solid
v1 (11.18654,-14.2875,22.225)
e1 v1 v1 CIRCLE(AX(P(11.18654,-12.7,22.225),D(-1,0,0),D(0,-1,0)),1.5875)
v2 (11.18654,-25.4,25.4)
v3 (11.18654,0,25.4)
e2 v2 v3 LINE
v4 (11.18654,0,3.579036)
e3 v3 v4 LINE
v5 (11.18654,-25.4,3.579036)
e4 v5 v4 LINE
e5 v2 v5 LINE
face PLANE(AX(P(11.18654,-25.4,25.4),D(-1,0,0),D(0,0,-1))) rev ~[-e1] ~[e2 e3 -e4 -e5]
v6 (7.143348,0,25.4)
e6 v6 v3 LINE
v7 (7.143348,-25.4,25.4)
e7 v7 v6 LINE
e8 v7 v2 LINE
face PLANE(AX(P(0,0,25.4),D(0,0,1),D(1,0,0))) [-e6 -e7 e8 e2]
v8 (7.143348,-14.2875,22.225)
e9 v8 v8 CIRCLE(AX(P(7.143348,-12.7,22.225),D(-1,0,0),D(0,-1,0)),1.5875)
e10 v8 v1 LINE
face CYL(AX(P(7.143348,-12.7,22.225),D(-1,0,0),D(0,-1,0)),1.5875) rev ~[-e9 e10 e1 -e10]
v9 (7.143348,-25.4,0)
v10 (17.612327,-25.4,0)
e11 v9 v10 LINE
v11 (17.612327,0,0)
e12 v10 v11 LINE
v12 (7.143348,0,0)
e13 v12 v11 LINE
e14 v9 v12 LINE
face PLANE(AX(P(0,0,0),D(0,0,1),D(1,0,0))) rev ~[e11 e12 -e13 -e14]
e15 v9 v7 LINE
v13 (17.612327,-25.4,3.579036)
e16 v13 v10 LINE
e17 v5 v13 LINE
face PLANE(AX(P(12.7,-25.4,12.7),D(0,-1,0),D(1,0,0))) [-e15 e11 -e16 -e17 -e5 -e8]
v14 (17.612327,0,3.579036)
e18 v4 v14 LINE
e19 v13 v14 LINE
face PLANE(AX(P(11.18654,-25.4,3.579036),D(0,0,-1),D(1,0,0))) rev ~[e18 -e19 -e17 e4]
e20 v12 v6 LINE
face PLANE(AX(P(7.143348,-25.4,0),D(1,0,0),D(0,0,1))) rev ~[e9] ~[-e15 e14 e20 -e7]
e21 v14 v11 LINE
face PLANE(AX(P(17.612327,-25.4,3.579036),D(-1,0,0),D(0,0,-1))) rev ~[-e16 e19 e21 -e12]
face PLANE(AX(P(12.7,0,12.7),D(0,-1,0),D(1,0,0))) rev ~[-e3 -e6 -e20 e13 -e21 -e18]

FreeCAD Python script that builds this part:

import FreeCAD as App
import Part
import Sketcher
from FreeCAD import Vector
Q = App.Units.Quantity

doc = App.newDocument("Part")
body = doc.addObject("PartDesign::Body", "Body")

sketch1 = body.newObject("Sketcher::SketchObject", "Sketch")
sketch1.AttachmentSupport = (doc.getObject("XZ_Plane"), [""])
sketch1.MapMode = "FlatFace"
sketch1.addGeometry([
    Part.LineSegment(Vector(0, 25, 0), Vector(0, 0, 0)),
    Part.LineSegment(Vector(0, 0, 0), Vector(25, 0, 0)),
    Part.LineSegment(Vector(25, 0, 0), Vector(25, 25, 0)),
    Part.LineSegment(Vector(25, 25, 0), Vector(0, 25, 0)),
], False)
sketch1.addConstraint([
    Sketcher.Constraint("Coincident", 0, 2, 1, 1),
    Sketcher.Constraint("Coincident", 1, 2, 2, 1),
    Sketcher.Constraint("Coincident", 2, 2, 3, 1),
    Sketcher.Constraint("Coincident", 3, 2, 0, 1),
    Sketcher.Constraint("Vertical", 0),
    Sketcher.Constraint("Horizontal", 1),
    Sketcher.Constraint("Vertical", 2),
    Sketcher.Constraint("Horizontal", 3),
    Sketcher.Constraint("Coincident", 0, 2, -1, 1),
    Sketcher.Constraint("Equal", 3, 0),
    Sketcher.Constraint("DistanceX", 1, 1, 1, 2, Q("1 in")),
])
pad1 = body.newObject("PartDesign::Pad", "Pad")
pad1.Profile = sketch1
pad1.Length = Q("1 in")

sketch2 = body.newObject("Sketcher::SketchObject", "Sketch001")
sketch2.AttachmentSupport = (doc.getObject("XZ_Plane"), [""])
sketch2.MapMode = "FlatFace"
sketch2.AttachmentOffset = App.Placement(Vector(0, 0, 1 * 25.4), App.Rotation())
sketch2.addGeometry([
    Part.LineSegment(Vector(0, 25.4, 0), Vector(0, 0, 0)),
    Part.LineSegment(Vector(0, 0, 0), Vector(7.1, 0, 0)),
    Part.LineSegment(Vector(7.1, 0, 0), Vector(7.1, 25.4, 0)),
    Part.LineSegment(Vector(7.1, 25.4, 0), Vector(0, 25.4, 0)),
    Part.LineSegment(Vector(25.4, 25.4, 0), Vector(11.2, 25.4, 0)),
    Part.LineSegment(Vector(11.2, 25.4, 0), Vector(11.2, 3.6, 0)),
    Part.LineSegment(Vector(11.2, 3.6, 0), Vector(17.6, 3.6, 0)),
    Part.LineSegment(Vector(17.6, 3.6, 0), Vector(17.6, 0, 0)),
    Part.LineSegment(Vector(17.6, 0, 0), Vector(25.4, 0, 0)),
    Part.LineSegment(Vector(25.4, 0, 0), Vector(25.4, 25.4, 0)),
], False)
sketch2.addConstraint([
    Sketcher.Constraint("Coincident", 0, 2, 1, 1),
    Sketcher.Constraint("Coincident", 1, 2, 2, 1),
    Sketcher.Constraint("Coincident", 2, 2, 3, 1),
    Sketcher.Constraint("Coincident", 3, 2, 0, 1),
    Sketcher.Constraint("Coincident", 4, 2, 5, 1),
    Sketcher.Constraint("Coincident", 5, 2, 6, 1),
    Sketcher.Constraint("Coincident", 6, 2, 7, 1),
    Sketcher.Constraint("Coincident", 7, 2, 8, 1),
    Sketcher.Constraint("Coincident", 8, 2, 9, 1),
    Sketcher.Constraint("Coincident", 9, 2, 4, 1),
    Sketcher.Constraint("Vertical", 0),
    Sketcher.Constraint("Horizontal", 1),
    Sketcher.Constraint("Vertical", 2),
    Sketcher.Constraint("Horizontal", 3),
    Sketcher.Constraint("Horizontal", 4),
    Sketcher.Constraint("Vertical", 5),
    Sketcher.Constraint("Horizontal", 6),
    Sketcher.Constraint("Vertical", 7),
    Sketcher.Constraint("Horizontal", 8),
    Sketcher.Constraint("Vertical", 9),
    Sketcher.Constraint("Coincident", 0, 2, -1, 1),
    Sketcher.Constraint("PointOnObject", 7, 2, -1),
    Sketcher.Constraint("Horizontal", 3, 2, 4, 2),
    Sketcher.Constraint("DistanceY", 0, 2, 0, 1, Q("1 in")),
    Sketcher.Constraint("DistanceX", -1, 1, 8, 2, Q("1 in")),
    Sketcher.Constraint("DistanceX", 4, 2, 4, 1, 14.21346),
    Sketcher.Constraint("DistanceX", 1, 1, 1, 2, 7.143348),
    Sketcher.Constraint("DistanceX", 6, 1, 6, 2, 6.425787),
    Sketcher.Constraint("DistanceY", 5, 2, 5, 1, 21.820964),
])
pocket1 = body.newObject("PartDesign::Pocket", "Pocket")
pocket1.Profile = sketch2
pocket1.Length = Q("1 in")

sketch3 = body.newObject("Sketcher::SketchObject", "Sketch002")
sketch3.AttachmentSupport = (doc.getObject("YZ_Plane"), [""])
sketch3.MapMode = "FlatFace"
sketch3.AttachmentOffset = App.Placement(Vector(0, 0, 7.143348), App.Rotation())
sketch3.addGeometry(Part.Circle(Vector(-12.7, 22.2, 0), Vector(0, 0, 1), 1.6), False)
sketch3.addConstraint([
    Sketcher.Constraint("Diameter", 0, Q("0.125 in")),
    Sketcher.Constraint("DistanceX", 0, 3, -1, 1, Q("0.5 in")),
    Sketcher.Constraint("DistanceY", -1, 1, 0, 3, Q("0.875 in")),
])
pocket2 = body.newObject("PartDesign::Pocket", "Pocket001")
pocket2.Profile = sketch3
pocket2.Length = Q("1 in")
pocket2.Reversed = True

doc.recompute()
